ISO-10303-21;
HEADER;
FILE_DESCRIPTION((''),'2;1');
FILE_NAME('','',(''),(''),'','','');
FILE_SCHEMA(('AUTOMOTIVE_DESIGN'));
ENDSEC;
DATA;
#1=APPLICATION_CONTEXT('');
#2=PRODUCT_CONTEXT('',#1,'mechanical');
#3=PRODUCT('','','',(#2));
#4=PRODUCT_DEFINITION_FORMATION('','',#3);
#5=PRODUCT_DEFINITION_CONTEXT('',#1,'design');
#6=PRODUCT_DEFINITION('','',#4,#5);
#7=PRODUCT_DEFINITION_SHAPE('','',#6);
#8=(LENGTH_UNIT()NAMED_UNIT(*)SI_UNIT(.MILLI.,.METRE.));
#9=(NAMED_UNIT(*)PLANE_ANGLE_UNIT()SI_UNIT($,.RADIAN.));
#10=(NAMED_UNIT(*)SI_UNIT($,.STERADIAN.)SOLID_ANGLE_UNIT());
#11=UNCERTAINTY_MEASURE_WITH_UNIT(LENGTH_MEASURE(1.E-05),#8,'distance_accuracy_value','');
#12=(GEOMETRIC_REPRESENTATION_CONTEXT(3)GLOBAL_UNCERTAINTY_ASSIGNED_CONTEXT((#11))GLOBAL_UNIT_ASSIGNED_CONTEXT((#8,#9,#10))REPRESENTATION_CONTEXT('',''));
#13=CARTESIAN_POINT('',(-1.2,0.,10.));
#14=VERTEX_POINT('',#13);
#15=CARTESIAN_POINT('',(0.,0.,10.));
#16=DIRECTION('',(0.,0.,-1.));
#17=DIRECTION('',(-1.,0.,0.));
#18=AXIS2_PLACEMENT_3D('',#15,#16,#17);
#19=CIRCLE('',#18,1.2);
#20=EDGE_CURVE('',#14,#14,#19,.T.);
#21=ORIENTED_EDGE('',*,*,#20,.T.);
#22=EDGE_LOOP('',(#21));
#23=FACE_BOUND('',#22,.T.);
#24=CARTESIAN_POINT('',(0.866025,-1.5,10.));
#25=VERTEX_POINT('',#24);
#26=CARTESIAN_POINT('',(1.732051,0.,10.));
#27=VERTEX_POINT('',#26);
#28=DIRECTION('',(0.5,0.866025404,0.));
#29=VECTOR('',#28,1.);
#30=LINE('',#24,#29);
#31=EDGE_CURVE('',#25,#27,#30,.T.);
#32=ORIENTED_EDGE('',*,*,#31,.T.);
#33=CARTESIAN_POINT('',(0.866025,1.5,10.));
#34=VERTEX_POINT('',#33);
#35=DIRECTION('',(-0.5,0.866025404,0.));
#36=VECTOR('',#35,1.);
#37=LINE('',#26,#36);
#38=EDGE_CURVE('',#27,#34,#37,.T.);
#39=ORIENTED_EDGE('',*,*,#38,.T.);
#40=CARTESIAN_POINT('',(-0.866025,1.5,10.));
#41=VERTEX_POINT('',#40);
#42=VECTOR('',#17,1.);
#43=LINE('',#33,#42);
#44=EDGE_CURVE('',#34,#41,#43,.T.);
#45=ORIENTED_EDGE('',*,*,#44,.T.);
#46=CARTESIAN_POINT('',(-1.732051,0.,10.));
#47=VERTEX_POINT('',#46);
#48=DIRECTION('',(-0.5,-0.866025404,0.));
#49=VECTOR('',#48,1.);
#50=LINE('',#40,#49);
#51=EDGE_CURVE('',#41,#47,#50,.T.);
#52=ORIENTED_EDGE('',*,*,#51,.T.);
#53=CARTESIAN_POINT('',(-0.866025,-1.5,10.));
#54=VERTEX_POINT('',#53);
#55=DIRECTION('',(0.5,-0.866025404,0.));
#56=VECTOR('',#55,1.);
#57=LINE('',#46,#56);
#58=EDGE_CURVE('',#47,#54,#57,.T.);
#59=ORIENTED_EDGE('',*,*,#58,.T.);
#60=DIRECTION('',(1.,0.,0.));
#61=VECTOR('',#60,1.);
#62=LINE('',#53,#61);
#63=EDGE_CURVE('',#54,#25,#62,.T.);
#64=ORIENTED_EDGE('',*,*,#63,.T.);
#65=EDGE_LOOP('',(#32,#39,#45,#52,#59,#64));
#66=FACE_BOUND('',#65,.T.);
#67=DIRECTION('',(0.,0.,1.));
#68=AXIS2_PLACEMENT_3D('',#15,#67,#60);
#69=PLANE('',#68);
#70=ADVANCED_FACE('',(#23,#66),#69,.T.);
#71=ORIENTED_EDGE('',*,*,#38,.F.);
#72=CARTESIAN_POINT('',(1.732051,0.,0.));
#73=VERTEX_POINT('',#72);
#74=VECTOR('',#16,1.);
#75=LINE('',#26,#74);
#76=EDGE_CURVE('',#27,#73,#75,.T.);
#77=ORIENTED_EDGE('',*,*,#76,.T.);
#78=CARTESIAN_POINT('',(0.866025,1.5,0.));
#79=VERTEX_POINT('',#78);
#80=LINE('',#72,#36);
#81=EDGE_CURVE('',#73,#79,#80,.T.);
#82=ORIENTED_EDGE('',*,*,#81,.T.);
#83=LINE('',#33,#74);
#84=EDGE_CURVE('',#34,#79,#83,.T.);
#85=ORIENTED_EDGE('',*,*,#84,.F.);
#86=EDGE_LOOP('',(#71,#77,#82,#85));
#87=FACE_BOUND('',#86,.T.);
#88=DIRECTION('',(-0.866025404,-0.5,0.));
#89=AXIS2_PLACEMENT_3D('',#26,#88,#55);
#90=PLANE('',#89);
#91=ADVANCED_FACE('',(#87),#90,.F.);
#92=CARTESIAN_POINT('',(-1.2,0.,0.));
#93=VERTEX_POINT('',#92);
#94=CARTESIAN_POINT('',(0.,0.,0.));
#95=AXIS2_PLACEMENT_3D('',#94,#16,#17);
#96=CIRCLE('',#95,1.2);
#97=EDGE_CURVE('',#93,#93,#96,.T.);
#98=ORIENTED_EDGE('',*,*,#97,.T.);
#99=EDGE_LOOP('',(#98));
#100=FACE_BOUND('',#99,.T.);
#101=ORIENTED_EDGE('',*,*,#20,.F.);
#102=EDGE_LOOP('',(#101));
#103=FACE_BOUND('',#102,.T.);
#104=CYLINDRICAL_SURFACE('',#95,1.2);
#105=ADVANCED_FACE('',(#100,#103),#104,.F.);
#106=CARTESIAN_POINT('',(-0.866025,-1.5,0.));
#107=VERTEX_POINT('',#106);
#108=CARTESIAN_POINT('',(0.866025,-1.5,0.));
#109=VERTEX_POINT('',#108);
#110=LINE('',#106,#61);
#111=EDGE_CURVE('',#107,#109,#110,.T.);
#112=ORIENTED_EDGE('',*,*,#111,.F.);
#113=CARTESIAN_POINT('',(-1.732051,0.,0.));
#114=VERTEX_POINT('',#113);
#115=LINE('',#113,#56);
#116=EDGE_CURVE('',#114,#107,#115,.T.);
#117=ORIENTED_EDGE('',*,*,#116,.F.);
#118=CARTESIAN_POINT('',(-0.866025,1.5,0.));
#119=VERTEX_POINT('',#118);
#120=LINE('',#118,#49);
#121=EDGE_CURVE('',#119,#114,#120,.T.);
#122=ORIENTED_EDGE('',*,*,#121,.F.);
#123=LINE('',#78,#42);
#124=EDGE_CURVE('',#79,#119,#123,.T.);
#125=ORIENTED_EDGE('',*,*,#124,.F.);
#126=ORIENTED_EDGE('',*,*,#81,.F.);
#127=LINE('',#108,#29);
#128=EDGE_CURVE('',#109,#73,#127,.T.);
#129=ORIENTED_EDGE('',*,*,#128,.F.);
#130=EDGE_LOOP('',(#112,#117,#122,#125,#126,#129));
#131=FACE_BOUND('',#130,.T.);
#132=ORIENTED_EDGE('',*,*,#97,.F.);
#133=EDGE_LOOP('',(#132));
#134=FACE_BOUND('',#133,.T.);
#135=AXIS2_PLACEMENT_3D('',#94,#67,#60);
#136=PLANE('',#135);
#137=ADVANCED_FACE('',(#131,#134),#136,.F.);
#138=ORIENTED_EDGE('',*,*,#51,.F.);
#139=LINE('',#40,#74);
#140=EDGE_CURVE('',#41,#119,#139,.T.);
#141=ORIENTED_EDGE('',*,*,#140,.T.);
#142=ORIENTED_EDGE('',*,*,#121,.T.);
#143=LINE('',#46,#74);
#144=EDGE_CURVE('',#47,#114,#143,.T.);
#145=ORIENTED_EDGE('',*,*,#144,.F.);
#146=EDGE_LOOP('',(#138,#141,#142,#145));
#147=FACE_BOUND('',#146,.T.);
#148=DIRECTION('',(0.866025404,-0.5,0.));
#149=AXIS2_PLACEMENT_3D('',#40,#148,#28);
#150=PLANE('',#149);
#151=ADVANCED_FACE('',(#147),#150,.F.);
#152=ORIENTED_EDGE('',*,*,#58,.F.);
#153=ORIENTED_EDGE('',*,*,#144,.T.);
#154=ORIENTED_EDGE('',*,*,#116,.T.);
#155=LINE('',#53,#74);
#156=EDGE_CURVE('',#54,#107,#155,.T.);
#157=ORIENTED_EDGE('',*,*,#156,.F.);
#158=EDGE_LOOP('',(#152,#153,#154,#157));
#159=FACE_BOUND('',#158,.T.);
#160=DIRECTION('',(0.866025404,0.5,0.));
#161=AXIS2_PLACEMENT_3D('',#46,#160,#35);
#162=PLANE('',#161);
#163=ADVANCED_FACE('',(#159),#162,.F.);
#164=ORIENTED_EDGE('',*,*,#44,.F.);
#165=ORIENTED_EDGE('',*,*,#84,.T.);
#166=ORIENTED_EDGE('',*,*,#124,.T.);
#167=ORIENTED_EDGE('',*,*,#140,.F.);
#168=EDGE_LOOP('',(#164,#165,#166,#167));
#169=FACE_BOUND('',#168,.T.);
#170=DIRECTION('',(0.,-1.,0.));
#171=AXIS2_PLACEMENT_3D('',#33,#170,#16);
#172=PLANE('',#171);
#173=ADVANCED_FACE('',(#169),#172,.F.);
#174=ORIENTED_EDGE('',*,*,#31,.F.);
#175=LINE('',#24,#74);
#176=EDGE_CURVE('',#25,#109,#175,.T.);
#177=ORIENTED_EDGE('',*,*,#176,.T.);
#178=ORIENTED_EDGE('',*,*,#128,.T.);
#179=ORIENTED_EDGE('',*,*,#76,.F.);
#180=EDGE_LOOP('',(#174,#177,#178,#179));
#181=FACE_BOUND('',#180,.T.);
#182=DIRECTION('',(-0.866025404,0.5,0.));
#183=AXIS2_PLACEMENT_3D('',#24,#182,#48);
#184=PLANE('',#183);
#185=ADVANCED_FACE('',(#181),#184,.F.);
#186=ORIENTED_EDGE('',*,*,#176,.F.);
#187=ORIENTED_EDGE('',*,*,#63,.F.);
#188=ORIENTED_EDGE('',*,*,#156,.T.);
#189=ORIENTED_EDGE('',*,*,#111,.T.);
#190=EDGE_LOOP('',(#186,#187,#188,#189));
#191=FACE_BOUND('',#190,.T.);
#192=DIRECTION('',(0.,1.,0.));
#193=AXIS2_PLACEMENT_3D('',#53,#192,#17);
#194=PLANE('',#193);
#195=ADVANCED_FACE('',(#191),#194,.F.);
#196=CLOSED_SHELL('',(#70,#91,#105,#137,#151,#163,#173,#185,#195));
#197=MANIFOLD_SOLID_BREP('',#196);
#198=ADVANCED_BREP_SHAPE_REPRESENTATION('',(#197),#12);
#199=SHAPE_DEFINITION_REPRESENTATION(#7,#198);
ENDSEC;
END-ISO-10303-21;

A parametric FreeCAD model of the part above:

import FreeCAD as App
import Part
import Sketcher
Q = App.Units.Quantity

doc = App.newDocument("Part")
params = doc.addObject("Spreadsheet::Sheet", "Params")
for row, (alias, value) in enumerate([
    ("pad1_length", "10 mm"),
    ("sketch2_diameter", "2.4 mm"),
    ("hole_diameter", "2.4 mm"),
], start=1):
    params.set(f"A{row}", alias)
    params.set(f"B{row}", "=" + value)
    params.setAlias(f"B{row}", alias)

body = doc.addObject("PartDesign::Body", "Body")

sketch1 = doc.addObject("Sketcher::SketchObject", "Sketch")
body.addObject(sketch1)
sketch1.AttachmentSupport = (doc.XY_Plane, [""])
sketch1.MapMode = "FlatFace"
sketch1.addGeometry([
    Part.LineSegment(App.Vector(0.866025, -1.5, 0), App.Vector(1.732051, 0, 0)),
    Part.LineSegment(App.Vector(1.732051, 0, 0), App.Vector(0.866025, 1.5, 0)),
    Part.LineSegment(App.Vector(0.866025, 1.5, 0), App.Vector(-0.866025, 1.5, 0)),
    Part.LineSegment(App.Vector(-0.866025, 1.5, 0), App.Vector(-1.732051, 0, 0)),
    Part.LineSegment(App.Vector(-1.732051, 0, 0), App.Vector(-0.866025, -1.5, 0)),
    Part.LineSegment(App.Vector(-0.866025, -1.5, 0), App.Vector(0.866025, -1.5, 0)),
], False)
sketch1.addConstraint([
    Sketcher.Constraint("Coincident", 0, 2, 1, 1),
    Sketcher.Constraint("Coincident", 1, 2, 2, 1),
    Sketcher.Constraint("Coincident", 2, 2, 3, 1),
    Sketcher.Constraint("Coincident", 3, 2, 4, 1),
    Sketcher.Constraint("Coincident", 4, 2, 5, 1),
    Sketcher.Constraint("Coincident", 5, 2, 0, 1),
    Sketcher.Constraint("Horizontal", 2),
    Sketcher.Constraint("Horizontal", 5),
    Sketcher.Constraint("Symmetric", 0, 2, 3, 2, -1, 1),
    Sketcher.Constraint("Symmetric", 1, 2, 4, 2, -1, 1),
    Sketcher.Constraint("PointOnObject", 0, 2, -1),
    Sketcher.Constraint("Parallel", 0, 3),
    Sketcher.Constraint("Vertical", 2, 2, 4, 2),
    Sketcher.Constraint("Angle", 0, Q("60 deg")),
    Sketcher.Constraint("DistanceY", 4, 2, 2, 2, 3.0),
    Sketcher.Constraint("DistanceX", 2, 2, 2, 1, 1.732051),
])
pad1 = doc.addObject("PartDesign::Pad", "Pad")
body.addObject(pad1)
pad1.Profile = sketch1
pad1.setExpression("Length", "Params.pad1_length")

sketch2 = doc.addObject("Sketcher::SketchObject", "Sketch001")
body.addObject(sketch2)
sketch2.AttachmentSupport = (doc.XY_Plane, [""])
sketch2.MapMode = "FlatFace"
sketch2.addGeometry(Part.Circle(App.Vector(0, 0, 0), App.Vector(0, 0, 1), 1.2), False)
sketch2.addConstraint([
    Sketcher.Constraint("Coincident", 0, 3, -1, 1),
    Sketcher.Constraint("Diameter", 0, 2.4),
])
sketch2.setExpression("Constraints[1]", "Params.sketch2_diameter")
doc.recompute()
hole = doc.addObject("PartDesign::Hole", "Hole")
body.addObject(hole)
hole.Profile = sketch2
hole.ThreadType = "None"
hole.setExpression("Diameter", "Params.hole_diameter")
hole.DepthType = "ThroughAll"
hole.Reversed = True

doc.recompute()
